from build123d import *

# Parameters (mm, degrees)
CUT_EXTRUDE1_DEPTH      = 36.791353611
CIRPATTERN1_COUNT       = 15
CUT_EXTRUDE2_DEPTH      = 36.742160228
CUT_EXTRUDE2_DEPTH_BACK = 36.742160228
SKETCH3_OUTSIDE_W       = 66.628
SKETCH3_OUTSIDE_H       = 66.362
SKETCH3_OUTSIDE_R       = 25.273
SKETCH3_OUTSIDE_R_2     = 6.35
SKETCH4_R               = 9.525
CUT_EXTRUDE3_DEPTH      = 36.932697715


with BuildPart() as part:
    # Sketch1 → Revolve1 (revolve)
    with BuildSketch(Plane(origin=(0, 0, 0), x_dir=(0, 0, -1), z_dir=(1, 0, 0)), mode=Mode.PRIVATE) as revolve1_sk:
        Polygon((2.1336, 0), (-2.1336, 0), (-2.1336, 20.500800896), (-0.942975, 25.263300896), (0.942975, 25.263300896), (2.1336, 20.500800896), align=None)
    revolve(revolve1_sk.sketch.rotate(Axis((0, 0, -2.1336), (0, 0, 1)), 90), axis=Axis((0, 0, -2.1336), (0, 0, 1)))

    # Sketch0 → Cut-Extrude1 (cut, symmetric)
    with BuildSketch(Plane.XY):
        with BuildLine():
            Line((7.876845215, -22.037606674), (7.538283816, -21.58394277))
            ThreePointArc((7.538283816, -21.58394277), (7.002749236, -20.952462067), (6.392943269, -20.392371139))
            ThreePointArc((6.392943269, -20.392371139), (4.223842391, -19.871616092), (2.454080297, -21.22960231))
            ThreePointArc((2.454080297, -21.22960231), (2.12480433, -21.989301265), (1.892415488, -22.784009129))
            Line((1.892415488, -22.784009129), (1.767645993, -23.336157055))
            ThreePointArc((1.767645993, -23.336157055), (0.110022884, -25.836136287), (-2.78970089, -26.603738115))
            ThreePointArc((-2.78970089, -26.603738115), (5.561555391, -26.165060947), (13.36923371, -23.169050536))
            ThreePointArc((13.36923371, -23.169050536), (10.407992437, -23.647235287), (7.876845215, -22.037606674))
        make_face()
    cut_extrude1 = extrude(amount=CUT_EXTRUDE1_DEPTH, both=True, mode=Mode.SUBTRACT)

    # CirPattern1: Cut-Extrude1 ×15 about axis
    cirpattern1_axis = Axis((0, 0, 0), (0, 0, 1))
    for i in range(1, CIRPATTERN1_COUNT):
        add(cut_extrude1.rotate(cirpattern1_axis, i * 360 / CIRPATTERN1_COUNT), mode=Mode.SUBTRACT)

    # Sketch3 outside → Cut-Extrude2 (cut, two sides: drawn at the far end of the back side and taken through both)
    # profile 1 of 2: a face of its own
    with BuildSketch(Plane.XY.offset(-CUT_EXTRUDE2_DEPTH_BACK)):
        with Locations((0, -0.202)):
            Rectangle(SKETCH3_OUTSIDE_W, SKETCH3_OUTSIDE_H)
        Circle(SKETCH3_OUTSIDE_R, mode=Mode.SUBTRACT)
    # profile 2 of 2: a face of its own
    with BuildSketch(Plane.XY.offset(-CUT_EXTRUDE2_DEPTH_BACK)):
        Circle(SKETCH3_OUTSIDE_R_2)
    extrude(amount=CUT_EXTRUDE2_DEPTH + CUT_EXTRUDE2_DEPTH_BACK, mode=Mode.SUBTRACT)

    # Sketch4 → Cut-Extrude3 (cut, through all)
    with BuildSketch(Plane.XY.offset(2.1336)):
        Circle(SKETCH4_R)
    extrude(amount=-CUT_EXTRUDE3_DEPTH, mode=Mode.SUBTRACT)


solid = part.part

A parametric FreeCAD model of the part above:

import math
import FreeCAD as App
import Part
import Sketcher

V = App.Vector
Q = App.Units.Quantity


def add_polygon(sketch, points):
    """Adds a closed chain of lines whose ends are joined by coincident constraints."""
    first, n = sketch.GeometryCount, len(points)
    for a, b in zip(points, points[1:] + points[:1]):
        sketch.addGeometry(Part.LineSegment(App.Vector(*a, 0), App.Vector(*b, 0)), False)
    for i in range(n):
        sketch.addConstraint(Sketcher.Constraint("Coincident", first + i, 2, first + (i + 1) % n, 1))

doc = App.newDocument("Part")
body = doc.addObject("PartDesign::Body", "Body")

# Sketch on YZ plane
sketch1 = doc.addObject("Sketcher::SketchObject", "Sketch")
body.addObject(sketch1)
sketch1.AttachmentSupport = (doc.YZ_Plane, [""])
sketch1.MapMode = "FlatFace"
add_polygon(sketch1, [(0, 2.1), (0, -2.1), (20.5, -2.1), (25.3, -0.9), (25.3, 0.9), (20.5, 2.1)])  # lines 0-5
sketch1.addConstraint([
    Sketcher.Constraint("Vertical", 0),
    Sketcher.Constraint("Horizontal", 1),
    Sketcher.Constraint("Vertical", 3),
    Sketcher.Constraint("Horizontal", 5),
    Sketcher.Constraint("Symmetric", 0, 2, 5, 2, -1, 1),
    Sketcher.Constraint("Vertical", 1, 2, 4, 2),
    Sketcher.Constraint("Equal", 2, 4),
    Sketcher.Constraint("DistanceY", 0, 2, 0, 1, Q("0.168 in")),
    Sketcher.Constraint("DistanceX", 1, 2, 2, 2, Q("0.1875 in")),
    Sketcher.Constraint("DistanceY", 1, 2, 2, 2, Q("0.046875 in")),
    Sketcher.Constraint("DistanceX", 1, 1, 1, 2, 20.500801),
])
revolution = doc.addObject("PartDesign::Revolution", "Revolution")
body.addObject(revolution)
revolution.Profile = sketch1
revolution.ReferenceAxis = (sketch1, ["V_Axis"])
revolution.Angle = 360

# Sketch on XY plane
sketch2 = doc.addObject("Sketcher::SketchObject", "Sketch001")
body.addObject(sketch2)
sketch2.AttachmentSupport = (doc.XY_Plane, [""])
sketch2.MapMode = "FlatFace"
sketch2.addGeometry([
    Part.LineSegment(V(7.9, -22, 0), V(7.5, -21.6, 0)),  # 0
    Part.ArcOfCircle(Part.Circle(V(2.2, -25.6, 0), V(0, 0, 1), 6.7), math.radians(36.73), math.radians(51)),  # 1
    Part.ArcOfCircle(Part.Circle(V(4.8, -22.4, 0), V(0, 0, 1), 2.6), math.radians(51), math.radians(153)),  # 2
    Part.ArcOfCircle(Part.Circle(V(8.4, -24.3, 0), V(0, 0, 1), 6.7), math.radians(153), math.radians(167.27)),  # 3
    Part.LineSegment(V(1.9, -22.8, 0), V(1.8, -23.3, 0)),  # 4
    Part.ArcOfCircle(Part.Circle(V(-2.3, -22.4, 0), V(0, 0, 1), 4.2), math.radians(-96), math.radians(-13)),  # 5
    Part.ArcOfCircle(Part.Circle(V(0, 0, 0), V(0, 0, 1), 26.7), math.radians(-96), math.radians(-60)),  # 6
    Part.ArcOfCircle(Part.Circle(V(11.3, -19.5, 0), V(0, 0, 1), 4.2), math.radians(-143), math.radians(-60)),  # 7
], False)
sketch2.addConstraint([
    Sketcher.Constraint("Tangent", 0, 2, 1, 1),
    Sketcher.Constraint("Tangent", 1, 2, 2, 1),
    Sketcher.Constraint("Tangent", 2, 2, 3, 1),
    Sketcher.Constraint("Tangent", 3, 2, 4, 1),
    Sketcher.Constraint("Tangent", 4, 2, 5, 2),
    Sketcher.Constraint("Tangent", 5, 1, 6, 1),
    Sketcher.Constraint("Tangent", 6, 2, 7, 2),
    Sketcher.Constraint("Tangent", 7, 1, 0, 1),
    Sketcher.Constraint("Coincident", 6, 3, -1, 1),
    Sketcher.Constraint("Equal", 1, 3),
    Sketcher.Constraint("Equal", 5, 7),
    Sketcher.Constraint("Horizontal", 2, 3, 5, 3),
    Sketcher.Constraint("Equal", 0, 4),
    Sketcher.Constraint("Radius", 1, Q("0.262 in")),
    Sketcher.Constraint("Radius", 2, Q("0.102 in")),
    Sketcher.Constraint("DistanceX", 5, 3, 2, 3, Q("0.28 in")),
    Sketcher.Constraint("DistanceX", -1, 1, 2, 3, Q("0.1875 in")),
    Sketcher.Constraint("Radius", 5, 4.220954),
    Sketcher.Constraint("Radius", 6, 26.749604),
    Sketcher.Constraint("DistanceY", 1, 3, 0, 2, Q("0.1567 in")),
    Sketcher.Constraint("DistanceX", 1, 3, 1, 2, 4.188001),
])
pocket1 = doc.addObject("PartDesign::Pocket", "Pocket")
body.addObject(pocket1)
pocket1.Profile = sketch2
pocket1.Length = 73.582707
pocket1.Midplane = True
doc.recompute()

polarpattern = doc.addObject("PartDesign::PolarPattern", "PolarPattern")
body.addObject(polarpattern)
polarpattern.Originals = [pocket1]
polarpattern.Axis = (doc.Z_Axis, [""])
polarpattern.Angle = 360
polarpattern.Occurrences = 15
body.Tip = polarpattern

# Sketch on XY plane
sketch3 = doc.addObject("Sketcher::SketchObject", "Sketch002")
body.addObject(sketch3)
sketch3.AttachmentSupport = (doc.XY_Plane, [""])
sketch3.MapMode = "FlatFace"
add_polygon(sketch3, [(-33, 33), (-33, -33), (33, -33), (33, 33)])  # lines 0-3
sketch3.addGeometry(Part.Circle(V(0, 0, 0), V(0, 0, 1), 25), False)  # 4
sketch3.addGeometry(Part.Circle(V(0, 0, 0), V(0, 0, 1), 6), False)  # 5
sketch3.addConstraint([
    Sketcher.Constraint("Vertical", 0),
    Sketcher.Constraint("Horizontal", 1),
    Sketcher.Constraint("Vertical", 2),
    Sketcher.Constraint("Horizontal", 3),
    Sketcher.Constraint("Coincident", 4, 3, -1, 1),
    Sketcher.Constraint("Coincident", 5, 3, -1, 1),
    Sketcher.Constraint("Diameter", 5, Q("0.5 in")),
    Sketcher.Constraint("Diameter", 4, Q("1.99 in")),
    Sketcher.Constraint("DistanceX", 1, 1, 1, 2, 66.628),
    Sketcher.Constraint("DistanceY", 0, 2, 0, 1, 66.362),
    Sketcher.Constraint("DistanceX", 0, 2, -1, 1, 33.314),
    Sketcher.Constraint("DistanceY", 0, 2, -1, 1, 33.383),
])
pocket2 = doc.addObject("PartDesign::Pocket", "Pocket001")
body.addObject(pocket2)
pocket2.Profile = sketch3
pocket2.Type = "ThroughAll"
pocket2.Midplane = True

# Sketch on XY plane
sketch4 = doc.addObject("Sketcher::SketchObject", "Sketch003")
body.addObject(sketch4)
sketch4.AttachmentSupport = (doc.XY_Plane, [""])
sketch4.MapMode = "FlatFace"
sketch4.AttachmentOffset = App.Placement(V(0, 0, 0.084 * 25.4), App.Rotation())
sketch4.addGeometry(Part.Circle(V(0, 0, 0), V(0, 0, 1), 10), False)
sketch4.addConstraint([
    Sketcher.Constraint("Coincident", 0, 3, -1, 1),
    Sketcher.Constraint("Diameter", 0, Q("0.75 in")),
])
pocket3 = doc.addObject("PartDesign::Pocket", "Pocket002")
body.addObject(pocket3)
pocket3.Profile = sketch4
pocket3.Type = "ThroughAll"

doc.recompute()
